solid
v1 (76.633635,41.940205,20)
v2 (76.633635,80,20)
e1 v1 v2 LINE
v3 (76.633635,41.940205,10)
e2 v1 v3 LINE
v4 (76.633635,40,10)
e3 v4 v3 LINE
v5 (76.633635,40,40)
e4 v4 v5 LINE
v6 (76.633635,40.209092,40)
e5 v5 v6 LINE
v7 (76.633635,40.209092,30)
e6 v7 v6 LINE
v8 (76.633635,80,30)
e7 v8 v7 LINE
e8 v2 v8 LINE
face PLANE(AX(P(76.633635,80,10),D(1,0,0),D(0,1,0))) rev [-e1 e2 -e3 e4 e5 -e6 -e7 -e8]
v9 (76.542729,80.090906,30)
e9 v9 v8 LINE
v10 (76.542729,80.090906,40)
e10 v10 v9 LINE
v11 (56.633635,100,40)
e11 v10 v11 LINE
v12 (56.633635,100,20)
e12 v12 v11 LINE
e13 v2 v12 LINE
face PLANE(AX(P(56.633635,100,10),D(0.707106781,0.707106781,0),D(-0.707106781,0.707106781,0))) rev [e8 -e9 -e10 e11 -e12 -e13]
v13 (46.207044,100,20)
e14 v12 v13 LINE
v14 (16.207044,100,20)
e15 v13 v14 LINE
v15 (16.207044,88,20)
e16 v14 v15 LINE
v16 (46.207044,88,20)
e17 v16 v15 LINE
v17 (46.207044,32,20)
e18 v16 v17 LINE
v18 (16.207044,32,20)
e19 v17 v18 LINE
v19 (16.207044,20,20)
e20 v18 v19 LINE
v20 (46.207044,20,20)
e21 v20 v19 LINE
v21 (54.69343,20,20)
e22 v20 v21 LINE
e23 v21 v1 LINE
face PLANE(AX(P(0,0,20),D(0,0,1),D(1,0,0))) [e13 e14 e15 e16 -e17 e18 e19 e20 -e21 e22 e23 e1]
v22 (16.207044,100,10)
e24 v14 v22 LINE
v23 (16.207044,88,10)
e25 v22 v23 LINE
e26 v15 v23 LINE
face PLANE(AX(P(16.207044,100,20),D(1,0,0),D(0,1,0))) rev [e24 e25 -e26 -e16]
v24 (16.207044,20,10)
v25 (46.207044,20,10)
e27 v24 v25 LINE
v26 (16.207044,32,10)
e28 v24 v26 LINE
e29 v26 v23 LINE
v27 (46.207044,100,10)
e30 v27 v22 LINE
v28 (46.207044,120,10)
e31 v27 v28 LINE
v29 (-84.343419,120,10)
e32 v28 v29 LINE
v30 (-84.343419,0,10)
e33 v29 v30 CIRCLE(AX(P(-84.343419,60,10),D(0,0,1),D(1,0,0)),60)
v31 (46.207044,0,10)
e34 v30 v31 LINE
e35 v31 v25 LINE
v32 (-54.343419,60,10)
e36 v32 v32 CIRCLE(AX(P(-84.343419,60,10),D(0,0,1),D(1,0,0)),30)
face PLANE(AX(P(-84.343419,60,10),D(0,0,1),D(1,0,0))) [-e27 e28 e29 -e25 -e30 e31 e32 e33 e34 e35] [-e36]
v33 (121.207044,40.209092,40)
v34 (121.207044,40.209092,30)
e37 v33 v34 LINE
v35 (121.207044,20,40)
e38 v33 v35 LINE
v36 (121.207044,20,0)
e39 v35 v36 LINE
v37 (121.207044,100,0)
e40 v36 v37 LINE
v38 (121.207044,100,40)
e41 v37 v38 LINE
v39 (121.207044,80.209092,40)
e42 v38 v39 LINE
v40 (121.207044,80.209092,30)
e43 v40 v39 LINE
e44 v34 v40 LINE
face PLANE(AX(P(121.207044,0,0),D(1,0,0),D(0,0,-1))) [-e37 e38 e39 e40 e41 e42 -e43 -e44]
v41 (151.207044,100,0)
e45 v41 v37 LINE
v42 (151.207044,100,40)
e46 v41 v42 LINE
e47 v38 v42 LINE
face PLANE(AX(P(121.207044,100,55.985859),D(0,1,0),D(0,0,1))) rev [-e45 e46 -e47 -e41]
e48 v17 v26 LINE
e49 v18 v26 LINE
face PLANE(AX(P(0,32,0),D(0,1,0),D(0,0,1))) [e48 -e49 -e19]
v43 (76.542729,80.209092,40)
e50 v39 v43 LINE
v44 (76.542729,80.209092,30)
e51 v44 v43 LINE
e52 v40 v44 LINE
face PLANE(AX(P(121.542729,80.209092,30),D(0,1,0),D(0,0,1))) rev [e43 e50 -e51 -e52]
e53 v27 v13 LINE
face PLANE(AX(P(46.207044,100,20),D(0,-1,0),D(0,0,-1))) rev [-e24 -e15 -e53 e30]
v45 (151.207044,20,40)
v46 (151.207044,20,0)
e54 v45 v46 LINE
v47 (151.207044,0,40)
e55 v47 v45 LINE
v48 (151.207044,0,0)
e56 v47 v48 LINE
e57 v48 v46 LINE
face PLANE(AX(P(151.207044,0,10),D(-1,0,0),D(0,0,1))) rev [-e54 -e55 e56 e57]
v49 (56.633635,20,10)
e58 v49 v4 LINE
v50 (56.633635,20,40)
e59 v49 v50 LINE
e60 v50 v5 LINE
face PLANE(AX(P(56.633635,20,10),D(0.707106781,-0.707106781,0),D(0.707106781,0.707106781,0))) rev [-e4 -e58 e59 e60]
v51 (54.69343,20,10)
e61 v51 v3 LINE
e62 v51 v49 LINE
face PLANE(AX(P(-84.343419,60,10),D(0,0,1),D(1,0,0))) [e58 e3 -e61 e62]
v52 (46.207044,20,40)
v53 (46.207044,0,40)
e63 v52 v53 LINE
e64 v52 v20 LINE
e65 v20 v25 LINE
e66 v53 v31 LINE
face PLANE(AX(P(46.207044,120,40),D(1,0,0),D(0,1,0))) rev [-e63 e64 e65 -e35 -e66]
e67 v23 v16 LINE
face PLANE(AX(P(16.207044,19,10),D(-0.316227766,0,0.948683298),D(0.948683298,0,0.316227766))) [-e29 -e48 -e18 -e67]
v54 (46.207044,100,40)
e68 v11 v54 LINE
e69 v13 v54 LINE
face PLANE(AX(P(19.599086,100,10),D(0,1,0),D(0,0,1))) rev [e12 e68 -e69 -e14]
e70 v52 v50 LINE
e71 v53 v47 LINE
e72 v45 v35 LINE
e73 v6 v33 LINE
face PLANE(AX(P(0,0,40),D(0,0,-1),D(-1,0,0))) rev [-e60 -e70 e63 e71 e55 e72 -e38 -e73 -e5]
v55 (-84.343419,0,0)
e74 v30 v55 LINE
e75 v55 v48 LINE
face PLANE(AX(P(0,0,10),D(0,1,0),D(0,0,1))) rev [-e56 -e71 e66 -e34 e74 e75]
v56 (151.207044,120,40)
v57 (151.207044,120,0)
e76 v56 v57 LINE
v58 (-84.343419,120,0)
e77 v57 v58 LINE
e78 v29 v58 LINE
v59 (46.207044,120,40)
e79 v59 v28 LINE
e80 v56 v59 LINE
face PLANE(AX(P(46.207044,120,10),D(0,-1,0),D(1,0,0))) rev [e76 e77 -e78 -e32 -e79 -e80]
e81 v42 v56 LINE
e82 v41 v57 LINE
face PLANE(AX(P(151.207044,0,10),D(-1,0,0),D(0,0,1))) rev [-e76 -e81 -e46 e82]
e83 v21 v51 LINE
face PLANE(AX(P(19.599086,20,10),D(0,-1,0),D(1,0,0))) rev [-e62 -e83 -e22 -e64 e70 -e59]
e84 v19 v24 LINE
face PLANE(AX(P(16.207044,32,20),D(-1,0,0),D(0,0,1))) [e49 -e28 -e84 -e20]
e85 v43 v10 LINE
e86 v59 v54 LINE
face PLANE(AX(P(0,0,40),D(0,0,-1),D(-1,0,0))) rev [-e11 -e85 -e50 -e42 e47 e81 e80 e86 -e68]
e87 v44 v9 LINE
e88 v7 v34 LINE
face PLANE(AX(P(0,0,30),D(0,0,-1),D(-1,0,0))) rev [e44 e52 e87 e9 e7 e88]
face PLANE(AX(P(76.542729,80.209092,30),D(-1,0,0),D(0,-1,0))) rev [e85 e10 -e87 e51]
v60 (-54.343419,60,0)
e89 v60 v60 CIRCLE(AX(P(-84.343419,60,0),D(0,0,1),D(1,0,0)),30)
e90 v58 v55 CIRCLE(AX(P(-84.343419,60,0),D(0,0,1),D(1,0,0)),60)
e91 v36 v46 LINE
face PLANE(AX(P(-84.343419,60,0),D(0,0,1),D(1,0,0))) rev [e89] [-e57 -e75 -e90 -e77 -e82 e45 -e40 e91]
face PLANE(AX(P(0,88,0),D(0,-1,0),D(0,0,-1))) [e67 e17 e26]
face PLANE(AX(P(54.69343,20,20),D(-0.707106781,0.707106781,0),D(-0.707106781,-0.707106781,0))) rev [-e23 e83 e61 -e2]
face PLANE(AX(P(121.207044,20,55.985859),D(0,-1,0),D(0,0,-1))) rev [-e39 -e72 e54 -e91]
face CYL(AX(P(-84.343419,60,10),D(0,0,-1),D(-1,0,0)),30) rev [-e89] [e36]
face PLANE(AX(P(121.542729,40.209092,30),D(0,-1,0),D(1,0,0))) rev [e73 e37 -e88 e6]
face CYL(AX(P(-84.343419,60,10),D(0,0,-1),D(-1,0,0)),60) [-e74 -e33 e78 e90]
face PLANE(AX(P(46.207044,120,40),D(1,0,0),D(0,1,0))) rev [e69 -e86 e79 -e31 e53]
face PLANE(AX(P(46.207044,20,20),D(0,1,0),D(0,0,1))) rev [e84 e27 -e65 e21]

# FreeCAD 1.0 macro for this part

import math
import FreeCAD as App
import Part
import Sketcher
from FreeCAD import Vector
Q = App.Units.Quantity

doc = App.newDocument("Part")
body = doc.addObject("PartDesign::Body", "Body")

# Sketch on XY plane
sketch1 = body.newObject("Sketcher::SketchObject", "Sketch")
sketch1.AttachmentSupport = (doc.getObject("XY_Plane"), [""])
sketch1.MapMode = "FlatFace"
sketch1.addGeometry([
    Part.ArcOfCircle(Part.Circle(Vector(-84, 60, 0), Vector(0, 0, 1), 60), math.radians(90), math.radians(270)),  # 0
    Part.LineSegment(Vector(-84, 0, 0), Vector(151, 0, 0)),  # 1
    Part.LineSegment(Vector(151, 0, 0), Vector(151, 120, 0)),  # 2
    Part.LineSegment(Vector(151, 120, 0), Vector(-84, 120, 0)),  # 3
    Part.Circle(Vector(-84, 60, 0), Vector(0, 0, 1), 30),  # 4
], False)
sketch1.addConstraint([
    Sketcher.Constraint("Tangent", 0, 2, 1, 1),
    Sketcher.Constraint("Coincident", 1, 2, 2, 1),
    Sketcher.Constraint("Coincident", 2, 2, 3, 1),
    Sketcher.Constraint("Tangent", 3, 2, 0, 1),
    Sketcher.Constraint("Horizontal", 1),
    Sketcher.Constraint("Vertical", 2),
    Sketcher.Constraint("Horizontal", 3),
    Sketcher.Constraint("Coincident", 4, 3, 0, 3),
    Sketcher.Constraint("PointOnObject", 0, 2, -1),
    Sketcher.Constraint("Diameter", 4, Q("60 mm")),
    Sketcher.Constraint("Radius", 0, Q("60 mm")),
    Sketcher.Constraint("DistanceX", 1, 1, 1, 2, Q("235.550463 mm")),
    Sketcher.Constraint("DistanceX", 0, 3, -1, 1, Q("84.343419 mm")),
])
pad1 = body.newObject("PartDesign::Pad", "Pad")
pad1.Profile = sketch1
pad1.Length = 10

# Sketch on YZ plane
sketch2 = body.newObject("Sketcher::SketchObject", "Sketch001")
sketch2.AttachmentSupport = (doc.getObject("YZ_Plane"), [""])
sketch2.MapMode = "FlatFace"
sketch2.AttachmentOffset = App.Placement(Vector(0, 0, 151.207044), App.Rotation())
sketch2.addGeometry([
    Part.LineSegment(Vector(100, 21, 0), Vector(20, 21, 0)),
    Part.LineSegment(Vector(20, 21, 0), Vector(20, -18, 0)),
    Part.LineSegment(Vector(20, -18, 0), Vector(100, -18, 0)),
    Part.LineSegment(Vector(100, -18, 0), Vector(100, 21, 0)),
], False)
sketch2.addConstraint([
    Sketcher.Constraint("Coincident", 0, 2, 1, 1),
    Sketcher.Constraint("Coincident", 1, 2, 2, 1),
    Sketcher.Constraint("Coincident", 2, 2, 3, 1),
    Sketcher.Constraint("Coincident", 3, 2, 0, 1),
    Sketcher.Constraint("Horizontal", 0),
    Sketcher.Constraint("Vertical", 1),
    Sketcher.Constraint("Horizontal", 2),
    Sketcher.Constraint("Vertical", 3),
    Sketcher.Constraint("DistanceX", 0, 2, 0, 1, Q("80 mm")),
    Sketcher.Constraint("DistanceX", -1, 1, 0, 2, Q("20 mm")),
    Sketcher.Constraint("DistanceY", 1, 2, 1, 1, Q("39.744106 mm")),
    Sketcher.Constraint("DistanceY", -1, 1, 0, 2, Q("21.295349 mm")),
])
pocket1 = body.newObject("PartDesign::Pocket", "Pocket")
pocket1.Profile = sketch2
pocket1.Length = 30

# Sketch on XY plane
sketch3 = body.newObject("Sketcher::SketchObject", "Sketch002")
sketch3.AttachmentSupport = (doc.getObject("XY_Plane"), [""])
sketch3.MapMode = "FlatFace"
sketch3.addGeometry([
    Part.LineSegment(Vector(46, 120, 0), Vector(46, 0, 0)),
    Part.LineSegment(Vector(46, 0, 0), Vector(151, 0, 0)),
    Part.LineSegment(Vector(151, 0, 0), Vector(151, 120, 0)),
    Part.LineSegment(Vector(151, 120, 0), Vector(46, 120, 0)),
], False)
sketch3.addConstraint([
    Sketcher.Constraint("Coincident", 0, 2, 1, 1),
    Sketcher.Constraint("Coincident", 1, 2, 2, 1),
    Sketcher.Constraint("Coincident", 2, 2, 3, 1),
    Sketcher.Constraint("Coincident", 3, 2, 0, 1),
    Sketcher.Constraint("Vertical", 0),
    Sketcher.Constraint("Horizontal", 1),
    Sketcher.Constraint("Vertical", 2),
    Sketcher.Constraint("Horizontal", 3),
    Sketcher.Constraint("PointOnObject", 0, 2, -1),
    Sketcher.Constraint("DistanceX", 1, 1, 1, 2, Q("105 mm")),
    Sketcher.Constraint("DistanceY", 0, 2, 0, 1, Q("120 mm")),
    Sketcher.Constraint("DistanceX", -1, 1, 0, 2, Q("46.207044 mm")),
])
pad2 = body.newObject("PartDesign::Pad", "Pad001")
pad2.Profile = sketch3
pad2.Length = 40

# Sketch on YZ plane
sketch4 = body.newObject("Sketcher::SketchObject", "Sketch003")
sketch4.AttachmentSupport = (doc.getObject("YZ_Plane"), [""])
sketch4.MapMode = "FlatFace"
sketch4.AttachmentOffset = App.Placement(Vector(0, 0, 151.207044), App.Rotation())
sketch4.addGeometry([
    Part.LineSegment(Vector(100, 56, 0), Vector(20, 56, 0)),
    Part.LineSegment(Vector(20, 56, 0), Vector(20, -22, 0)),
    Part.LineSegment(Vector(20, -22, 0), Vector(100, -22, 0)),
    Part.LineSegment(Vector(100, -22, 0), Vector(100, 56, 0)),
], False)
sketch4.addConstraint([
    Sketcher.Constraint("Coincident", 0, 2, 1, 1),
    Sketcher.Constraint("Coincident", 1, 2, 2, 1),
    Sketcher.Constraint("Coincident", 2, 2, 3, 1),
    Sketcher.Constraint("Coincident", 3, 2, 0, 1),
    Sketcher.Constraint("Horizontal", 0),
    Sketcher.Constraint("Vertical", 1),
    Sketcher.Constraint("Horizontal", 2),
    Sketcher.Constraint("Vertical", 3),
    Sketcher.Constraint("DistanceX", 0, 2, 0, 1, Q("80 mm")),
    Sketcher.Constraint("DistanceX", -1, 1, 0, 2, Q("20 mm")),
    Sketcher.Constraint("DistanceY", 1, 2, 1, 1, Q("78.106225 mm")),
    Sketcher.Constraint("DistanceY", -1, 1, 0, 2, Q("55.985859 mm")),
])
pocket2 = body.newObject("PartDesign::Pocket", "Pocket001")
pocket2.Profile = sketch4
pocket2.Length = 30

# Sketch on XY plane
sketch5 = body.newObject("Sketcher::SketchObject", "Sketch004")
sketch5.AttachmentSupport = (doc.getObject("XY_Plane"), [""])
sketch5.MapMode = "FlatFace"
sketch5.AttachmentOffset = App.Placement(Vector(0, 0, 40), App.Rotation())
sketch5.addGeometry([
    Part.LineSegment(Vector(77, 80, 0), Vector(77, 40, 0)),
    Part.LineSegment(Vector(77, 40, 0), Vector(122, 40, 0)),
    Part.LineSegment(Vector(122, 40, 0), Vector(122, 80, 0)),
    Part.LineSegment(Vector(122, 80, 0), Vector(77, 80, 0)),
], False)
sketch5.addConstraint([
    Sketcher.Constraint("Coincident", 0, 2, 1, 1),
    Sketcher.Constraint("Coincident", 1, 2, 2, 1),
    Sketcher.Constraint("Coincident", 2, 2, 3, 1),
    Sketcher.Constraint("Coincident", 3, 2, 0, 1),
    Sketcher.Constraint("Vertical", 0),
    Sketcher.Constraint("Horizontal", 1),
    Sketcher.Constraint("Vertical", 2),
    Sketcher.Constraint("Horizontal", 3),
    Sketcher.Constraint("DistanceX", 1, 1, 1, 2, Q("45 mm")),
    Sketcher.Constraint("DistanceY", 0, 2, 0, 1, Q("40 mm")),
    Sketcher.Constraint("DistanceX", -1, 1, 0, 2, Q("76.542729 mm")),
    Sketcher.Constraint("DistanceY", -1, 1, 0, 2, Q("40.209092 mm")),
])
pocket3 = body.newObject("PartDesign::Pocket", "Pocket002")
pocket3.Profile = sketch5
pocket3.Length = 10

# Sketch on XY plane
sketch6 = body.newObject("Sketcher::SketchObject", "Sketch005")
sketch6.AttachmentSupport = (doc.getObject("XY_Plane"), [""])
sketch6.MapMode = "FlatFace"
sketch6.AttachmentOffset = App.Placement(Vector(0, 0, 40), App.Rotation())
sketch6.addGeometry([
    Part.LineSegment(Vector(57, 100, 0), Vector(20, 100, 0)),  # 0
    Part.LineSegment(Vector(20, 100, 0), Vector(20, 20, 0)),  # 1
    Part.LineSegment(Vector(20, 20, 0), Vector(57, 20, 0)),  # 2
    Part.LineSegment(Vector(57, 20, 0), Vector(77, 40, 0)),  # 3
    Part.LineSegment(Vector(77, 40, 0), Vector(77, 80, 0)),  # 4
    Part.LineSegment(Vector(77, 80, 0), Vector(57, 100, 0)),  # 5
], False)
sketch6.addConstraint([
    Sketcher.Constraint("Coincident", 0, 2, 1, 1),
    Sketcher.Constraint("Coincident", 1, 2, 2, 1),
    Sketcher.Constraint("Coincident", 2, 2, 3, 1),
    Sketcher.Constraint("Coincident", 3, 2, 4, 1),
    Sketcher.Constraint("Coincident", 4, 2, 5, 1),
    Sketcher.Constraint("Coincident", 5, 2, 0, 1),
    Sketcher.Constraint("Horizontal", 0),
    Sketcher.Constraint("Vertical", 1),
    Sketcher.Constraint("Horizontal", 2),
    Sketcher.Constraint("Vertical", 4),
    Sketcher.Constraint("Perpendicular", 3, 5),
    Sketcher.Constraint("Vertical", 2, 2, 5, 2),
    Sketcher.Constraint("Equal", 3, 5),
    Sketcher.Constraint("DistanceY", 1, 2, 1, 1, Q("80 mm")),
    Sketcher.Constraint("DistanceY", 4, 1, 4, 2, Q("40 mm")),
    Sketcher.Constraint("DistanceY", -1, 1, 0, 2, Q("100 mm")),
    Sketcher.Constraint("DistanceX", 0, 2, 0, 1, Q("37.034549 mm")),
    Sketcher.Constraint("DistanceX", -1, 1, 0, 2, Q("19.599086 mm")),
])
pocket4 = body.newObject("PartDesign::Pocket", "Pocket003")
pocket4.Profile = sketch6
pocket4.Length = 30

# Sketch on XY plane
sketch7 = body.newObject("Sketcher::SketchObject", "Sketch006")
sketch7.AttachmentSupport = (doc.getObject("XY_Plane"), [""])
sketch7.MapMode = "FlatFace"
sketch7.AttachmentOffset = App.Placement(Vector(0, 0, 10), App.Rotation())
sketch7.addGeometry([
    Part.LineSegment(Vector(16, 100, 0), Vector(16, 20, 0)),  # 0
    Part.LineSegment(Vector(16, 20, 0), Vector(55, 20, 0)),  # 1
    Part.LineSegment(Vector(55, 20, 0), Vector(77, 42, 0)),  # 2
    Part.LineSegment(Vector(77, 42, 0), Vector(77, 80, 0)),  # 3
    Part.LineSegment(Vector(77, 80, 0), Vector(57, 100, 0)),  # 4
    Part.LineSegment(Vector(57, 100, 0), Vector(16, 100, 0)),  # 5
], False)
sketch7.addConstraint([
    Sketcher.Constraint("Coincident", 0, 2, 1, 1),
    Sketcher.Constraint("Coincident", 1, 2, 2, 1),
    Sketcher.Constraint("Coincident", 2, 2, 3, 1),
    Sketcher.Constraint("Coincident", 3, 2, 4, 1),
    Sketcher.Constraint("Coincident", 4, 2, 5, 1),
    Sketcher.Constraint("Coincident", 5, 2, 0, 1),
    Sketcher.Constraint("Vertical", 0),
    Sketcher.Constraint("Horizontal", 1),
    Sketcher.Constraint("Vertical", 3),
    Sketcher.Constraint("Horizontal", 5),
    Sketcher.Constraint("Perpendicular", 2, 4),
    Sketcher.Constraint("DistanceY", 0, 2, 0, 1, Q("80 mm")),
    Sketcher.Constraint("Angle", 2, Q("45 deg")),
    Sketcher.Constraint("DistanceY", -1, 1, 0, 2, Q("20 mm")),
    Sketcher.Constraint("DistanceY", -1, 1, 3, 2, Q("80 mm")),
    Sketcher.Constraint("DistanceX", 5, 2, 5, 1, Q("40.426591 mm")),
    Sketcher.Constraint("DistanceX", 1, 1, 1, 2, Q("38.486386 mm")),
    Sketcher.Constraint("DistanceX", -1, 1, 1, 2, Q("54.69343 mm")),
])
pad3 = body.newObject("PartDesign::Pad", "Pad002")
pad3.Profile = sketch7
pad3.Length = 10

# Sketch on XZ plane
sketch8 = body.newObject("Sketcher::SketchObject", "Sketch007")
sketch8.AttachmentSupport = (doc.getObject("XZ_Plane"), [""])
sketch8.MapMode = "FlatFace"
sketch8.AttachmentOffset = App.Placement(Vector(0, 0, -20), App.Rotation())
sketch8.addGeometry([
    Part.LineSegment(Vector(16, 10, 0), Vector(46, 20, 0)),
    Part.LineSegment(Vector(46, 20, 0), Vector(16, 20, 0)),
    Part.LineSegment(Vector(16, 20, 0), Vector(16, 10, 0)),
], False)
sketch8.addConstraint([
    Sketcher.Constraint("Coincident", 0, 2, 1, 1),
    Sketcher.Constraint("Coincident", 1, 2, 2, 1),
    Sketcher.Constraint("Coincident", 2, 2, 0, 1),
    Sketcher.Constraint("Horizontal", 1),
    Sketcher.Constraint("Vertical", 2),
    Sketcher.Constraint("DistanceX", 1, 2, 1, 1, Q("30 mm")),
    Sketcher.Constraint("DistanceY", 2, 2, 2, 1, Q("10 mm")),
    Sketcher.Constraint("DistanceY", -1, 1, 0, 2, Q("20 mm")),
    Sketcher.Constraint("DistanceX", -1, 1, 0, 2, Q("46.207044 mm")),
])
pocket5 = body.newObject("PartDesign::Pocket", "Pocket004")
pocket5.Profile = sketch8
pocket5.Type = "TwoLengths"
pocket5.Length = 1
pocket5.Length2 = 68
pocket5.Reversed = True

# Sketch on XZ plane
sketch9 = body.newObject("Sketcher::SketchObject", "Sketch008")
sketch9.AttachmentSupport = (doc.getObject("XZ_Plane"), [""])
sketch9.MapMode = "FlatFace"
sketch9.AttachmentOffset = App.Placement(Vector(0, 0, -20), App.Rotation())
sketch9.addGeometry([
    Part.LineSegment(Vector(16, 20, 0), Vector(16, 10, 0)),
    Part.LineSegment(Vector(16, 10, 0), Vector(46, 10, 0)),
    Part.LineSegment(Vector(46, 10, 0), Vector(46, 20, 0)),
    Part.LineSegment(Vector(46, 20, 0), Vector(16, 20, 0)),
], False)
sketch9.addConstraint([
    Sketcher.Constraint("Coincident", 0, 2, 1, 1),
    Sketcher.Constraint("Coincident", 1, 2, 2, 1),
    Sketcher.Constraint("Coincident", 2, 2, 3, 1),
    Sketcher.Constraint("Coincident", 3, 2, 0, 1),
    Sketcher.Constraint("Vertical", 0),
    Sketcher.Constraint("Horizontal", 1),
    Sketcher.Constraint("Vertical", 2),
    Sketcher.Constraint("Horizontal", 3),
    Sketcher.Constraint("DistanceX", 1, 1, 1, 2, Q("30 mm")),
    Sketcher.Constraint("DistanceY", 0, 2, 0, 1, Q("10 mm")),
    Sketcher.Constraint("DistanceY", -1, 1, 0, 2, Q("10 mm")),
    Sketcher.Constraint("DistanceX", -1, 1, 0, 2, Q("16.207044 mm")),
])
pad4 = body.newObject("PartDesign::Pad", "Pad003")
pad4.Profile = sketch9
pad4.Length = 12
pad4.Reversed = True

doc.recompute()
